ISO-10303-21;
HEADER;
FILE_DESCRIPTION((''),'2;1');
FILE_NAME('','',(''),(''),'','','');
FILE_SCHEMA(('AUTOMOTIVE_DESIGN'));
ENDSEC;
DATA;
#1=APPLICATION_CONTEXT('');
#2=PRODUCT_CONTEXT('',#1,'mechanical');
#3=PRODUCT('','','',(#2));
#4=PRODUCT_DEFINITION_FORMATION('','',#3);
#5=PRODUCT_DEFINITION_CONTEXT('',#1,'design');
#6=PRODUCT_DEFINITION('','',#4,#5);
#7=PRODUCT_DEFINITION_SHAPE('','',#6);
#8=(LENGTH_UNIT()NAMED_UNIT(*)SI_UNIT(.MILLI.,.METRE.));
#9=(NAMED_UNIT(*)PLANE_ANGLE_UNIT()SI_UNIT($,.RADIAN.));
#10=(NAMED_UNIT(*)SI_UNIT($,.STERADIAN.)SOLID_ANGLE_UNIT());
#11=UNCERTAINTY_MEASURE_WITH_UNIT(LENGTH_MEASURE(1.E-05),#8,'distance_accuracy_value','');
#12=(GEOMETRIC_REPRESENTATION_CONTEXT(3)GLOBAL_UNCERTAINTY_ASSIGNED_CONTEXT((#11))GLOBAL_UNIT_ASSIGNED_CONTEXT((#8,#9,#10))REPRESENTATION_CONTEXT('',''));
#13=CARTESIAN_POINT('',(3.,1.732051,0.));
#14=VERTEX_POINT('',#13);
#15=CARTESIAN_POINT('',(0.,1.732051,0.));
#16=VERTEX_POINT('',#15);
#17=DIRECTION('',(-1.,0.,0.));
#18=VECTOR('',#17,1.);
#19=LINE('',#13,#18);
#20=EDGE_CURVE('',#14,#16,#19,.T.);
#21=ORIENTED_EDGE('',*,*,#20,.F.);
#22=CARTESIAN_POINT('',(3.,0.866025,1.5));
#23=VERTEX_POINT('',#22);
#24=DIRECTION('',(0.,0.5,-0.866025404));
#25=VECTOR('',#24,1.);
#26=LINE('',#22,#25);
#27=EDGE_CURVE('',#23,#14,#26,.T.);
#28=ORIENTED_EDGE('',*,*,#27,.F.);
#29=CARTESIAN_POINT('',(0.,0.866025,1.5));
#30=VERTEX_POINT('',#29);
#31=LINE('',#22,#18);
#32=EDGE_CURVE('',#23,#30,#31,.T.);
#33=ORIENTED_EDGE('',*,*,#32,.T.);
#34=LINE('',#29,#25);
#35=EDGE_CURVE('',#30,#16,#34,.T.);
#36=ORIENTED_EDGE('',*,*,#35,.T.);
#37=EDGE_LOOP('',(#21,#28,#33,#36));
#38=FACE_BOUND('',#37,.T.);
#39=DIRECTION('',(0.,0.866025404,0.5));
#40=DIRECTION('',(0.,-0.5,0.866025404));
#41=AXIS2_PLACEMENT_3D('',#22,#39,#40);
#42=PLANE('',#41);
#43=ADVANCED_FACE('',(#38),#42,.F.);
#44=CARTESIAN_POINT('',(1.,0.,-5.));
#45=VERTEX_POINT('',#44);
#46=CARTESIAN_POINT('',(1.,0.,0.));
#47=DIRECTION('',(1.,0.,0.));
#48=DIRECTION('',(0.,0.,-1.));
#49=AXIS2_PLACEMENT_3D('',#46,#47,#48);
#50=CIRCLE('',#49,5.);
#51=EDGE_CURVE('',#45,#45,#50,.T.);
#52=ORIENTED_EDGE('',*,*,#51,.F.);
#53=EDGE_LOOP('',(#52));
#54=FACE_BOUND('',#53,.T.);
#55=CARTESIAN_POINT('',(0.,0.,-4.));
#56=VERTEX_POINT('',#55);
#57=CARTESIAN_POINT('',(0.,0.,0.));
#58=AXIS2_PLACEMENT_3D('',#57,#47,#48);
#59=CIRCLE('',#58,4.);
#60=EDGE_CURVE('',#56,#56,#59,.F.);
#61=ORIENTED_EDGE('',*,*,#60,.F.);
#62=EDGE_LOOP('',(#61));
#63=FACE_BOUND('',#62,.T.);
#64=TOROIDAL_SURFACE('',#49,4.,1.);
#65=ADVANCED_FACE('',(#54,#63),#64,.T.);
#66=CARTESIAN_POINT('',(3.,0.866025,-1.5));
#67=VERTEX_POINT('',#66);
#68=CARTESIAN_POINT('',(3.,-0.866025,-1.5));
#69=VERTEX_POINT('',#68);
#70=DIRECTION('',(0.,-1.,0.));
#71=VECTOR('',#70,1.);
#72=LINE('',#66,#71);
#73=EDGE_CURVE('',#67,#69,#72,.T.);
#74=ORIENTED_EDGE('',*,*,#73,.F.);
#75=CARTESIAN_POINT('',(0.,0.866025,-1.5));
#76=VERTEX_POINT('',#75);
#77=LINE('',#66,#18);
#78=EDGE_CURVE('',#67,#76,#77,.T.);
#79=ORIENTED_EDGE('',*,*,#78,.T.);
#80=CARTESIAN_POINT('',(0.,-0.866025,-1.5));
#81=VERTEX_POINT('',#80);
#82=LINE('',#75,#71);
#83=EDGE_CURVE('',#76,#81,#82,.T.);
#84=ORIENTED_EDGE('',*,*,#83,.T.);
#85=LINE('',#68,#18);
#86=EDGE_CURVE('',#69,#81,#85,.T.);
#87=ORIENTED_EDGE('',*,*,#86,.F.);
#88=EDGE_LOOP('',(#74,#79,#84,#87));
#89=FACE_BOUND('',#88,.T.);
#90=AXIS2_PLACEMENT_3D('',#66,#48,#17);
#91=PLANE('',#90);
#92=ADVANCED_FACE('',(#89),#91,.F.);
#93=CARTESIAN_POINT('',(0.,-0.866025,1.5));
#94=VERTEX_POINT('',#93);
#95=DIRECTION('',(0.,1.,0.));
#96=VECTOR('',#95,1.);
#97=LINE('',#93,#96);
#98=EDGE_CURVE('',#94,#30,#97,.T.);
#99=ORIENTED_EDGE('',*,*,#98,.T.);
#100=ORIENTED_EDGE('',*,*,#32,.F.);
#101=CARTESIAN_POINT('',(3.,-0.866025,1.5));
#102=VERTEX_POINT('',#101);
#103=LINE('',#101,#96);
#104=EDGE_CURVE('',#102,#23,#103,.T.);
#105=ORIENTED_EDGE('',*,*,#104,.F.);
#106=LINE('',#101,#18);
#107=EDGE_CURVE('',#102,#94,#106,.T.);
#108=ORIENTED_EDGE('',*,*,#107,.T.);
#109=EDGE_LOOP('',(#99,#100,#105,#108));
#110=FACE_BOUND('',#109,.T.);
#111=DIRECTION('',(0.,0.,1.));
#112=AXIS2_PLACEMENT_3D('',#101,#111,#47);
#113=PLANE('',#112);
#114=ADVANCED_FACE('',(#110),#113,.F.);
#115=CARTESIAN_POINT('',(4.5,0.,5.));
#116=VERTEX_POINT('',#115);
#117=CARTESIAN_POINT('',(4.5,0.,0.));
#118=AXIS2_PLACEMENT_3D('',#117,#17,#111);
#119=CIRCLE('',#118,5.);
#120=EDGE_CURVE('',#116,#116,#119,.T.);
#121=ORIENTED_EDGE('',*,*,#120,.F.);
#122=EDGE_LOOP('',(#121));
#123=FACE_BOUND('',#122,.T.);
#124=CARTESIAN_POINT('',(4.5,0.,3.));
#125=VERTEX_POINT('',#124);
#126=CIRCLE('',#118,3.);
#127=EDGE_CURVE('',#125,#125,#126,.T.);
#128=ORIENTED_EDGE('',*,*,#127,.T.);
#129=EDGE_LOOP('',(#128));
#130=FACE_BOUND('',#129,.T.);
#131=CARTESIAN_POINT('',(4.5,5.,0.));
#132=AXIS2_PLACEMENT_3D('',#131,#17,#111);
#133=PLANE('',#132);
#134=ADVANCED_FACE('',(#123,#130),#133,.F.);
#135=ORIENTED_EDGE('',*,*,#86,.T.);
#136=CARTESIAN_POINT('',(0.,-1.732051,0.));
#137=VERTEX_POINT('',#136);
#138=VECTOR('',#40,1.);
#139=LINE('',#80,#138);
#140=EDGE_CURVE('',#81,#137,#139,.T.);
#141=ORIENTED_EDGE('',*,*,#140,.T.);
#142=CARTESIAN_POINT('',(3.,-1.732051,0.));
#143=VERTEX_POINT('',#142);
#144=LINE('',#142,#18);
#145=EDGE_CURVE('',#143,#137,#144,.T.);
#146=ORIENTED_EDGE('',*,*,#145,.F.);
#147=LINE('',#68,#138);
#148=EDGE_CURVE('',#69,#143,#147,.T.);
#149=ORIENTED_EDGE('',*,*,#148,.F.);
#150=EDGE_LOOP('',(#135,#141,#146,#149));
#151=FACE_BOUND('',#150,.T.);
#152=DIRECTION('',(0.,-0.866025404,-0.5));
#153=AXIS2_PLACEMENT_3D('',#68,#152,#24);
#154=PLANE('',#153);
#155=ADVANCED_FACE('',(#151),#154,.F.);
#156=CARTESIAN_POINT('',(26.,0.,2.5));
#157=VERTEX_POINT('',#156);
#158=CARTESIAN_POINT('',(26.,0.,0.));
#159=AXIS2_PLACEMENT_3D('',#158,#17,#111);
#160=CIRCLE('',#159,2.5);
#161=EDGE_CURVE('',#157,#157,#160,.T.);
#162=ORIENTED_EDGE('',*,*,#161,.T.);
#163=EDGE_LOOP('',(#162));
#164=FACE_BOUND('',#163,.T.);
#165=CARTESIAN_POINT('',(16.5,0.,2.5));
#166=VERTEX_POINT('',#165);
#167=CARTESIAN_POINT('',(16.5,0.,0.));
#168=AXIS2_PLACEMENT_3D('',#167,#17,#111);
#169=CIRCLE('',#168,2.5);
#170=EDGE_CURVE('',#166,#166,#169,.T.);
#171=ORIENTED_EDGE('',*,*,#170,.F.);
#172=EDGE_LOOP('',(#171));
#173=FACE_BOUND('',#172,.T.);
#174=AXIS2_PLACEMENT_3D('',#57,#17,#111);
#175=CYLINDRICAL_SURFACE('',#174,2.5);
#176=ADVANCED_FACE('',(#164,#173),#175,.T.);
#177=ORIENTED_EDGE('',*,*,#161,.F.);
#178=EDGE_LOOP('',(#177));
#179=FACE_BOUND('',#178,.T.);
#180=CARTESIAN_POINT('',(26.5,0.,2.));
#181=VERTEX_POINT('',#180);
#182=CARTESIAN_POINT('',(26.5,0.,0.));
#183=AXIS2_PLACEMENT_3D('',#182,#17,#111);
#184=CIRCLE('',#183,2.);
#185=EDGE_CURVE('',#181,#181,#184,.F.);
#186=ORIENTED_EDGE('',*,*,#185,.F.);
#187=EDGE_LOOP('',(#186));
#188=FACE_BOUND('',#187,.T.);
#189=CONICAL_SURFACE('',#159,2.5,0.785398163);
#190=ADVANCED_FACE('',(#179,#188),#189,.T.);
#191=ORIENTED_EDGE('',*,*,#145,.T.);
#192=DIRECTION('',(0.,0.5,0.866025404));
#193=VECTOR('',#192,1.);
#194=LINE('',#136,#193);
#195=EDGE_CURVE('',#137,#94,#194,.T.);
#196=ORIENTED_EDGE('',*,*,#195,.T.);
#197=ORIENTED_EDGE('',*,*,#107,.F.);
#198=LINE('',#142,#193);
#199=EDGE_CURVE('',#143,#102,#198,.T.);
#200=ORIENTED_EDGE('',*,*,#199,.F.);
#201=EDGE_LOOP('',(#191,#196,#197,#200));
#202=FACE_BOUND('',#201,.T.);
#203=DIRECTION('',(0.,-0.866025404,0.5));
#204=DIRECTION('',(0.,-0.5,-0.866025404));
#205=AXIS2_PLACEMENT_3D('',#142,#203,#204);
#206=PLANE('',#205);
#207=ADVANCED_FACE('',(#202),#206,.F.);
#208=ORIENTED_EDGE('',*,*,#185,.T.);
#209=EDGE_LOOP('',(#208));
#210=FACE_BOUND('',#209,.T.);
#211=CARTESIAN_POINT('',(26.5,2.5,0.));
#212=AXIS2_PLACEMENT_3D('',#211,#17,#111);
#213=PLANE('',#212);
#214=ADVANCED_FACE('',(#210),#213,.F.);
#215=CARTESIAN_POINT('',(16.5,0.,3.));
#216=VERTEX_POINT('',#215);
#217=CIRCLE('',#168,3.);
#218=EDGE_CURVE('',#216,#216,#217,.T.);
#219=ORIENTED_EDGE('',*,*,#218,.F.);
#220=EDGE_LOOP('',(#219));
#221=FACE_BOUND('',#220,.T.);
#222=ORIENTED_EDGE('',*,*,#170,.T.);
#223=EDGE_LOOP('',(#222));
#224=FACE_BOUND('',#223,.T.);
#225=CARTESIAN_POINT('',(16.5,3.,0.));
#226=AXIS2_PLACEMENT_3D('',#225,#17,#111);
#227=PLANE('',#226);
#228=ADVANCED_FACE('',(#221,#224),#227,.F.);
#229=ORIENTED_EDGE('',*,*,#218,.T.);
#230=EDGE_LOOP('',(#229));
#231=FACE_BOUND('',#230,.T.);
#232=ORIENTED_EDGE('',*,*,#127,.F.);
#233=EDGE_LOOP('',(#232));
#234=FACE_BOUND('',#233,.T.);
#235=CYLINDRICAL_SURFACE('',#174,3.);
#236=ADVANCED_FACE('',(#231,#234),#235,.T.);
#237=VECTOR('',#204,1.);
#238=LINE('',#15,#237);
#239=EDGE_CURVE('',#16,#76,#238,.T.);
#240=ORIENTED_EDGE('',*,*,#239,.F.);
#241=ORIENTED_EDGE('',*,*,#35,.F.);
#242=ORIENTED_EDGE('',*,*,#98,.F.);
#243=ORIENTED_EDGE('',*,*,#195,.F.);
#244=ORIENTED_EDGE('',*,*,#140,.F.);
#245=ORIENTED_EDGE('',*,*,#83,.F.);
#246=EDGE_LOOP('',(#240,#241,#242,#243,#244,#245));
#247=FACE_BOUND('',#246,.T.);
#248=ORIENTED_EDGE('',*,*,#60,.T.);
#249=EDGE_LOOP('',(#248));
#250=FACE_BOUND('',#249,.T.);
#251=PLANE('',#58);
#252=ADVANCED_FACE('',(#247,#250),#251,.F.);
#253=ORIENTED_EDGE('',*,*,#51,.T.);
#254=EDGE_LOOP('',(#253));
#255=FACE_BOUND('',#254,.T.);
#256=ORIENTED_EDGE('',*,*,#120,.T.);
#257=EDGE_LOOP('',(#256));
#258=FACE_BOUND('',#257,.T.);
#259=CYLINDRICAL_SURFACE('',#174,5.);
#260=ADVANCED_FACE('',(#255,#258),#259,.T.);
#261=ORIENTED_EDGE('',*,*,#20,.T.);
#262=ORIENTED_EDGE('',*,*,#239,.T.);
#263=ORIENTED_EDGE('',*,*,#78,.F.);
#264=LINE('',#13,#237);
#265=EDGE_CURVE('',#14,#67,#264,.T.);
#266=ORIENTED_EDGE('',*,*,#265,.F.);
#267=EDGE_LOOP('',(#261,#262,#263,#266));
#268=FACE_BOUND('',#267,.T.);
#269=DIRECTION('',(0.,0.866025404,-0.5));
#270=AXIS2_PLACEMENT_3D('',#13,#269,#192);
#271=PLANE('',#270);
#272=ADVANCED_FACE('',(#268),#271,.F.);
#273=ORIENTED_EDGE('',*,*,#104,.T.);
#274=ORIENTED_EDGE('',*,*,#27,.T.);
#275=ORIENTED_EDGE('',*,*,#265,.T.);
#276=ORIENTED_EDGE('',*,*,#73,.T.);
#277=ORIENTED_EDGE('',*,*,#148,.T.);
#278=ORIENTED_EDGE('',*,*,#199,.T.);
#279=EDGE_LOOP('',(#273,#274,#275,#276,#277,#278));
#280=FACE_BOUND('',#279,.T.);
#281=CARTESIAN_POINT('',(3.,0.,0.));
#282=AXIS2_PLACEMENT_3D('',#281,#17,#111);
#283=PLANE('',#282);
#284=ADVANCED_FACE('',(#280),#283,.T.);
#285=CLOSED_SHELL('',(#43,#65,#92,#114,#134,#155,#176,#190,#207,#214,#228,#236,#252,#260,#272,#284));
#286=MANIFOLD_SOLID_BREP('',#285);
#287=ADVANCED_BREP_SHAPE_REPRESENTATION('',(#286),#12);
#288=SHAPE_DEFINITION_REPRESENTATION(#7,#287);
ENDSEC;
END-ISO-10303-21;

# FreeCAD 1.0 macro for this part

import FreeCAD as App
import Part
import Sketcher
from FreeCAD import Vector
Q = App.Units.Quantity


def edges_at(feature, points):
    """Names of the edges that pass closest to the given points."""
    edges = feature.Shape.Edges
    near = lambda p: min(range(len(edges)), key=lambda i: edges[i].distToShape(Part.Vertex(*p))[0])
    return sorted({f"Edge{near(p) + 1}" for p in points})


def add_polygon(sketch, points):
    """Adds a closed chain of lines whose ends are joined by coincident constraints."""
    first, n = sketch.GeometryCount, len(points)
    for a, b in zip(points, points[1:] + points[:1]):
        sketch.addGeometry(Part.LineSegment(App.Vector(*a, 0), App.Vector(*b, 0)), False)
    for i in range(n):
        sketch.addConstraint(Sketcher.Constraint("Coincident", first + i, 2, first + (i + 1) % n, 1))

doc = App.newDocument("Part")
body = doc.addObject("PartDesign::Body", "Body")

# Sketch on XY plane
sketch1 = body.newObject("Sketcher::SketchObject", "Sketch")
sketch1.AttachmentSupport = (doc.getObject("XY_Plane"), [""])
sketch1.MapMode = "FlatFace"
add_polygon(sketch1, [(0, 5), (0, 0), (26.5, 0), (26.5, 2.5), (16.5, 2.5), (16.5, 3), (4.5, 3), (4.5, 5)])  # lines 0-7
sketch1.addConstraint([
    Sketcher.Constraint("Vertical", 0),
    Sketcher.Constraint("Horizontal", 1),
    Sketcher.Constraint("Vertical", 2),
    Sketcher.Constraint("Horizontal", 3),
    Sketcher.Constraint("Vertical", 4),
    Sketcher.Constraint("Horizontal", 5),
    Sketcher.Constraint("Vertical", 6),
    Sketcher.Constraint("Horizontal", 7),
    Sketcher.Constraint("Coincident", 0, 2, -1, 1),
    Sketcher.Constraint("DistanceX", 3, 2, 3, 1, Q("10 mm")),
    Sketcher.Constraint("DistanceX", 5, 2, 5, 1, Q("12 mm")),
    Sketcher.Constraint("DistanceY", 0, 2, 0, 1, Q("5 mm")),
    Sketcher.Constraint("DistanceY", 6, 1, 6, 2, Q("2 mm")),
    Sketcher.Constraint("DistanceX", 1, 1, 1, 2, Q("26.5 mm")),
    Sketcher.Constraint("DistanceY", 2, 1, 2, 2, Q("2.5 mm")),
])
revolution = body.newObject("PartDesign::Revolution", "Revolution")
revolution.Profile = sketch1
revolution.ReferenceAxis = (sketch1, ["H_Axis"])
revolution.Angle = 360

# Sketch on YZ plane
sketch2 = body.newObject("Sketcher::SketchObject", "Sketch001")
sketch2.AttachmentSupport = (doc.getObject("YZ_Plane"), [""])
sketch2.MapMode = "FlatFace"
add_polygon(sketch2, [(1.732051, 0), (0.866025, -1.5), (-0.866025, -1.5), (-1.732051, 0), (-0.866025, 1.5), (0.866025, 1.5)])  # lines 0-5
sketch2.addConstraint([
    Sketcher.Constraint("Horizontal", 1),
    Sketcher.Constraint("Horizontal", 4),
    Sketcher.Constraint("Symmetric", 0, 2, 3, 2, -1, 1),
    Sketcher.Constraint("Symmetric", 2, 2, 5, 2, -1, 1),
    Sketcher.Constraint("PointOnObject", 2, 2, -1),
    Sketcher.Constraint("Parallel", 2, 5),
    Sketcher.Constraint("Vertical", 1, 2, 3, 2),
    Sketcher.Constraint("Angle", 0, Q("-120 deg")),
    Sketcher.Constraint("DistanceY", 1, 2, 3, 2, Q("3 mm")),
    Sketcher.Constraint("DistanceX", 1, 2, 1, 1, Q("1.732051 mm")),
])
pocket1 = body.newObject("PartDesign::Pocket", "Pocket")
pocket1.Profile = sketch2
pocket1.Length = 3
pocket1.Reversed = True
doc.recompute()

fillet = body.newObject("PartDesign::Fillet", "Fillet")
fillet.Base = (pocket1, edges_at(pocket1, [(0, -5, 0)]))
fillet.Radius = 1
doc.recompute()

chamfer = body.newObject("PartDesign::Chamfer", "Chamfer")
chamfer.Base = (fillet, edges_at(fillet, [(26.5, -2.5, 0)]))
chamfer.Size = 0.5

doc.recompute()
